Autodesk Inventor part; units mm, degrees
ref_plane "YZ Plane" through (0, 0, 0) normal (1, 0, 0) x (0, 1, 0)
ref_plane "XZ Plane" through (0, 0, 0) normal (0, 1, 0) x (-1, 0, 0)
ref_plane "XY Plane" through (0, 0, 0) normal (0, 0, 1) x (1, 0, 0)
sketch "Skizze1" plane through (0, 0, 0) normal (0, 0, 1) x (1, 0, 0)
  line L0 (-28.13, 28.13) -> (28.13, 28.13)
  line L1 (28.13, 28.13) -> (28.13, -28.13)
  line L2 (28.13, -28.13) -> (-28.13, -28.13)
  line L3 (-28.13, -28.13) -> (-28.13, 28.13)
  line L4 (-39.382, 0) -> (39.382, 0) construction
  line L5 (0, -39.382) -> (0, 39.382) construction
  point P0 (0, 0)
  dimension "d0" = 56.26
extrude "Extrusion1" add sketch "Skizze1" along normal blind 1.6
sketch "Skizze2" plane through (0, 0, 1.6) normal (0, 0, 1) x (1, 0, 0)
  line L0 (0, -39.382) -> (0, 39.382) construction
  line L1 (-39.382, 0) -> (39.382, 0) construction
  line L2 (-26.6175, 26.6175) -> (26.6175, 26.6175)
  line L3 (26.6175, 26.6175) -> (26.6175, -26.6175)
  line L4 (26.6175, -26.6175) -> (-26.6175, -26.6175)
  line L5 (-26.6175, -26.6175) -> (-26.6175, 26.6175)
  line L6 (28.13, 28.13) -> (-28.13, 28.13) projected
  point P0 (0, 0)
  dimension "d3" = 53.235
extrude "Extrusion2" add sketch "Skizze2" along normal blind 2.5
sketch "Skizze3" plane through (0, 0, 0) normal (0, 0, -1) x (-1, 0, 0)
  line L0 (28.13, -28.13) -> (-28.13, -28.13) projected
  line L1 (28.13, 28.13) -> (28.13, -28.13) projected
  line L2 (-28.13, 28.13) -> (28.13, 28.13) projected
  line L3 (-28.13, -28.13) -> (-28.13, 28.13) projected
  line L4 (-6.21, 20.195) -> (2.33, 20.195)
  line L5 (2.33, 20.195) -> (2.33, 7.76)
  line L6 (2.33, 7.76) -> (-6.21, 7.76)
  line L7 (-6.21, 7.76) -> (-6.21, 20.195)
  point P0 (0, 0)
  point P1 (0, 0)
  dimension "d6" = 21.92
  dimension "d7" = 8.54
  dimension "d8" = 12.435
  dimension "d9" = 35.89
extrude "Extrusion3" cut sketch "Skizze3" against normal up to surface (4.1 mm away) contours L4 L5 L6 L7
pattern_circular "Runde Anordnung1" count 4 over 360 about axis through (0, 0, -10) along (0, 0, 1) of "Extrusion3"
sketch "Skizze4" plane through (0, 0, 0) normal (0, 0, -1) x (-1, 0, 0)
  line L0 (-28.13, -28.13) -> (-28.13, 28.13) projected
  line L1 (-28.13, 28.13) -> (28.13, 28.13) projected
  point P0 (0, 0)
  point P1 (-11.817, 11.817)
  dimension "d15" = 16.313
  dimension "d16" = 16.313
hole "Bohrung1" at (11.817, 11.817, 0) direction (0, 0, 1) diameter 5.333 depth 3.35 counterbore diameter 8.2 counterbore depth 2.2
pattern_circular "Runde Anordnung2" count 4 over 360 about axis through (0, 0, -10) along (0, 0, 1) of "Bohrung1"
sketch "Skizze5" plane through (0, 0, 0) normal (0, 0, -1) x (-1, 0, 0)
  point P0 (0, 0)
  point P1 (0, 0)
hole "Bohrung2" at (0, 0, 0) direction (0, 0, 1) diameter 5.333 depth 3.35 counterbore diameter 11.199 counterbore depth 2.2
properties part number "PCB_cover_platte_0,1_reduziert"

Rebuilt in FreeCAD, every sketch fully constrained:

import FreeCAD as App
import Part
import Sketcher

V = App.Vector
Q = App.Units.Quantity

doc = App.newDocument("Part")
body = doc.addObject("PartDesign::Body", "Body")

sketch1 = body.newObject("Sketcher::SketchObject", "Sketch")
sketch1.AttachmentSupport = (doc.getObject("XY_Plane"), [""])
sketch1.MapMode = "FlatFace"
sketch1.addGeometry([
    Part.LineSegment(V(28, 28, 0), V(-28, 28, 0)),
    Part.LineSegment(V(-28, 28, 0), V(-28, -28, 0)),
    Part.LineSegment(V(-28, -28, 0), V(28, -28, 0)),
    Part.LineSegment(V(28, -28, 0), V(28, 28, 0)),
], False)
sketch1.addConstraint([
    Sketcher.Constraint("Coincident", 0, 2, 1, 1),
    Sketcher.Constraint("Coincident", 1, 2, 2, 1),
    Sketcher.Constraint("Coincident", 2, 2, 3, 1),
    Sketcher.Constraint("Coincident", 3, 2, 0, 1),
    Sketcher.Constraint("Horizontal", 0),
    Sketcher.Constraint("Vertical", 1),
    Sketcher.Constraint("Horizontal", 2),
    Sketcher.Constraint("Vertical", 3),
    Sketcher.Constraint("Symmetric", 0, 2, 2, 2, -1, 1),
    Sketcher.Constraint("Equal", 2, 1),
    Sketcher.Constraint("DistanceX", 0, 2, 0, 1, Q("56.26 mm")),
])
pad1 = body.newObject("PartDesign::Pad", "Pad")
pad1.Profile = sketch1
pad1.Length = 1.6

sketch2 = body.newObject("Sketcher::SketchObject", "Sketch001")
sketch2.AttachmentSupport = (doc.getObject("XY_Plane"), [""])
sketch2.MapMode = "FlatFace"
sketch2.AttachmentOffset = App.Placement(V(0, 0, 1.6), App.Rotation())
sketch2.addGeometry([
    Part.LineSegment(V(27, 27, 0), V(-27, 27, 0)),
    Part.LineSegment(V(-27, 27, 0), V(-27, -27, 0)),
    Part.LineSegment(V(-27, -27, 0), V(27, -27, 0)),
    Part.LineSegment(V(27, -27, 0), V(27, 27, 0)),
], False)
sketch2.addConstraint([
    Sketcher.Constraint("Coincident", 0, 2, 1, 1),
    Sketcher.Constraint("Coincident", 1, 2, 2, 1),
    Sketcher.Constraint("Coincident", 2, 2, 3, 1),
    Sketcher.Constraint("Coincident", 3, 2, 0, 1),
    Sketcher.Constraint("Horizontal", 0),
    Sketcher.Constraint("Vertical", 1),
    Sketcher.Constraint("Horizontal", 2),
    Sketcher.Constraint("Vertical", 3),
    Sketcher.Constraint("Symmetric", 0, 2, 2, 2, -1, 1),
    Sketcher.Constraint("Equal", 2, 1),
    Sketcher.Constraint("DistanceX", 0, 2, 0, 1, Q("53.235 mm")),
])
pad2 = body.newObject("PartDesign::Pad", "Pad001")
pad2.Profile = sketch2
pad2.Length = 2.5

sketch3 = body.newObject("Sketcher::SketchObject", "Sketch002")
sketch3.AttachmentSupport = (doc.getObject("XY_Plane"), [""])
sketch3.MapMode = "FlatFace"
sketch3.addGeometry([
    Part.LineSegment(V(-2, 20, 0), V(6, 20, 0)),
    Part.LineSegment(V(6, 20, 0), V(6, 8, 0)),
    Part.LineSegment(V(6, 8, 0), V(-2, 8, 0)),
    Part.LineSegment(V(-2, 8, 0), V(-2, 20, 0)),
], False)
sketch3.addConstraint([
    Sketcher.Constraint("Coincident", 0, 2, 1, 1),
    Sketcher.Constraint("Coincident", 1, 2, 2, 1),
    Sketcher.Constraint("Coincident", 2, 2, 3, 1),
    Sketcher.Constraint("Coincident", 3, 2, 0, 1),
    Sketcher.Constraint("Horizontal", 0),
    Sketcher.Constraint("Vertical", 1),
    Sketcher.Constraint("Horizontal", 2),
    Sketcher.Constraint("Vertical", 3),
    Sketcher.Constraint("DistanceX", 0, 1, 0, 2, Q("8.54 mm")),
    Sketcher.Constraint("DistanceY", 1, 2, 1, 1, Q("12.435 mm")),
    Sketcher.Constraint("DistanceX", -1, 1, 0, 2, Q("6.21 mm")),
    Sketcher.Constraint("DistanceY", -1, 1, 1, 2, Q("7.76 mm")),
])
pocket1 = body.newObject("PartDesign::Pocket", "Pocket")
pocket1.Profile = sketch3
pocket1.Length = 4.1
pocket1.Reversed = True
doc.recompute()

polarpattern = body.newObject("PartDesign::PolarPattern", "PolarPattern")
polarpattern.Originals = [pocket1]
polarpattern.Axis = (doc.getObject("Z_Axis"), [""])
polarpattern.Angle = 360
polarpattern.Occurrences = 4
body.Tip = polarpattern

sketch4 = body.newObject("Sketcher::SketchObject", "Sketch003")
sketch4.AttachmentSupport = (doc.getObject("XY_Plane"), [""])
sketch4.MapMode = "FlatFace"
sketch4.addGeometry(Part.Circle(V(11.8, 11.8, 0), V(0, 0, 1), 2.7), False)
sketch4.addConstraint([
    Sketcher.Constraint("Diameter", 0, Q("5.333 mm")),
    Sketcher.Constraint("DistanceX", -1, 1, 0, 3, Q("11.817 mm")),
    Sketcher.Constraint("DistanceY", -1, 1, 0, 3, Q("11.817 mm")),
])
doc.recompute()
hole = body.newObject("PartDesign::Hole", "Hole")
hole.Profile = sketch4
hole.ThreadType = "None"
hole.Diameter = 5.333
hole.DepthType = "Dimension"
hole.Depth = 3.35
hole.DrillPoint = "Flat"
hole.HoleCutType = "Counterbore"
hole.HoleCutDiameter = 8.2
hole.HoleCutDepth = 2.2
hole.Reversed = True
doc.recompute()

polarpattern2 = body.newObject("PartDesign::PolarPattern", "PolarPattern001")
polarpattern2.Originals = [hole]
polarpattern2.Axis = (doc.getObject("Z_Axis"), [""])
polarpattern2.Angle = 360
polarpattern2.Occurrences = 4
body.Tip = polarpattern2

sketch5 = body.newObject("Sketcher::SketchObject", "Sketch004")
sketch5.AttachmentSupport = (doc.getObject("XY_Plane"), [""])
sketch5.MapMode = "FlatFace"
sketch5.addGeometry(Part.Circle(V(0, 0, 0), V(0, 0, 1), 2.7), False)
sketch5.addConstraint([
    Sketcher.Constraint("Coincident", 0, 3, -1, 1),
    Sketcher.Constraint("Diameter", 0, Q("5.333 mm")),
])
doc.recompute()
hole2 = body.newObject("PartDesign::Hole", "Hole001")
hole2.Profile = sketch5
hole2.ThreadType = "None"
hole2.Diameter = 5.333
hole2.DepthType = "Dimension"
hole2.Depth = 3.35
hole2.DrillPoint = "Flat"
hole2.HoleCutType = "Counterbore"
hole2.HoleCutDiameter = 11.199
hole2.HoleCutDepth = 2.2
hole2.Reversed = True

doc.recompute()
